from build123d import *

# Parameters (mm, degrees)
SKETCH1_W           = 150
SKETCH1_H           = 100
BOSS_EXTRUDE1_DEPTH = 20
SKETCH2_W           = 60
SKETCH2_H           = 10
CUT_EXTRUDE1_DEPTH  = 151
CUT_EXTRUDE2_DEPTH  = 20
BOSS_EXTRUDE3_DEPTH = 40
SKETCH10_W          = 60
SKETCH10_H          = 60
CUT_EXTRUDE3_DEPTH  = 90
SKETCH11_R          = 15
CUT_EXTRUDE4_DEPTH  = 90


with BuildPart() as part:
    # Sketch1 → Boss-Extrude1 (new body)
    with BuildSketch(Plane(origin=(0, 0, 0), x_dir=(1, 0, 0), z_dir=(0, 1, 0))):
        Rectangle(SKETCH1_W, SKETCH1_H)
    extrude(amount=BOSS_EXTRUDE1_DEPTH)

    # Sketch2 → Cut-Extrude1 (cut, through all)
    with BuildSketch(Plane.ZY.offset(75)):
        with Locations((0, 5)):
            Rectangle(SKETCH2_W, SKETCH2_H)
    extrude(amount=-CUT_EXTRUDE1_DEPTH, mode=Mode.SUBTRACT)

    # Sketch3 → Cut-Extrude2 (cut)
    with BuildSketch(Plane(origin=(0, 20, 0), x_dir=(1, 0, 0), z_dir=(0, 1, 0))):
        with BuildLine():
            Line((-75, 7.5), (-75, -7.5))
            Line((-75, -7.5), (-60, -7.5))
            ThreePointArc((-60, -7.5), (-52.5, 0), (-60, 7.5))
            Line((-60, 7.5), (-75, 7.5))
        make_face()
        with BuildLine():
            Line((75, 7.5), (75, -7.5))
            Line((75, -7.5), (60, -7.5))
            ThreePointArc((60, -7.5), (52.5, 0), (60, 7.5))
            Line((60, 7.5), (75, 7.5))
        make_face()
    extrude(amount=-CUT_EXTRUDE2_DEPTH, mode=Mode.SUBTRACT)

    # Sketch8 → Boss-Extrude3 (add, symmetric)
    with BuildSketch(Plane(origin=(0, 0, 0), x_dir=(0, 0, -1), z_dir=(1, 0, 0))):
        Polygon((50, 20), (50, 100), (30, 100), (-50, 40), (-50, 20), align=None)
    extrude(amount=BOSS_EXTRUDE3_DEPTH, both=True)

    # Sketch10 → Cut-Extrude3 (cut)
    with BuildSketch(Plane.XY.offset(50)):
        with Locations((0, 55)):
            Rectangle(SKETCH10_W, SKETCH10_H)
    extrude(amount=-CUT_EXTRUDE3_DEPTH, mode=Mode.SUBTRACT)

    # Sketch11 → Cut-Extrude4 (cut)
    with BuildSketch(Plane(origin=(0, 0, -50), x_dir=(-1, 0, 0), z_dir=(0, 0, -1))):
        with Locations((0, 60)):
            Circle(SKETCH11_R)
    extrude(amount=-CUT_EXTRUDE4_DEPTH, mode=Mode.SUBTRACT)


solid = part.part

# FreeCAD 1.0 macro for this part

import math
import FreeCAD as App
import Part
import Sketcher
Q = App.Units.Quantity


def add_polygon(sketch, points):
    """Adds a closed chain of lines whose ends are joined by coincident constraints."""
    first, n = sketch.GeometryCount, len(points)
    for a, b in zip(points, points[1:] + points[:1]):
        sketch.addGeometry(Part.LineSegment(App.Vector(*a, 0), App.Vector(*b, 0)), False)
    for i in range(n):
        sketch.addConstraint(Sketcher.Constraint("Coincident", first + i, 2, first + (i + 1) % n, 1))

doc = App.newDocument("Part")
body = doc.addObject("PartDesign::Body", "Body")

# Sketch on XZ plane
sketch1 = body.newObject("Sketcher::SketchObject", "Sketch")
sketch1.AttachmentSupport = (doc.getObject("XZ_Plane"), [""])
sketch1.MapMode = "FlatFace"
add_polygon(sketch1, [(-75, -50), (-75, 50), (75, 50), (75, -50)])  # lines 0-3
sketch1.addConstraint([
    Sketcher.Constraint("Vertical", 0),
    Sketcher.Constraint("Horizontal", 1),
    Sketcher.Constraint("Vertical", 2),
    Sketcher.Constraint("Horizontal", 3),
    Sketcher.Constraint("Symmetric", 0, 2, 2, 2, -1, 1),
    Sketcher.Constraint("DistanceX", 1, 1, 1, 2, Q("150 mm")),
    Sketcher.Constraint("DistanceY", 0, 1, 0, 2, Q("100 mm")),
])
pad1 = body.newObject("PartDesign::Pad", "Pad")
pad1.Profile = sketch1
pad1.Length = 20
pad1.Reversed = True

# Sketch on YZ plane
sketch2 = body.newObject("Sketcher::SketchObject", "Sketch001")
sketch2.AttachmentSupport = (doc.getObject("YZ_Plane"), [""])
sketch2.MapMode = "FlatFace"
sketch2.AttachmentOffset = App.Placement(App.Vector(0, 0, -75), App.Rotation())
add_polygon(sketch2, [(10, -30), (0, -30), (0, 30), (10, 30)])  # lines 0-3
sketch2.addConstraint([
    Sketcher.Constraint("Horizontal", 0),
    Sketcher.Constraint("Vertical", 1),
    Sketcher.Constraint("Horizontal", 2),
    Sketcher.Constraint("Vertical", 3),
    Sketcher.Constraint("Symmetric", 0, 2, 1, 2, -1, 1),
    Sketcher.Constraint("DistanceX", 0, 2, 0, 1, Q("10 mm")),
    Sketcher.Constraint("DistanceY", 1, 1, 1, 2, Q("60 mm")),
])
pocket1 = body.newObject("PartDesign::Pocket", "Pocket")
pocket1.Profile = sketch2
pocket1.Type = "ThroughAll"
pocket1.Reversed = True

# Sketch on XZ plane
sketch3 = body.newObject("Sketcher::SketchObject", "Sketch002")
sketch3.AttachmentSupport = (doc.getObject("XZ_Plane"), [""])
sketch3.MapMode = "FlatFace"
sketch3.AttachmentOffset = App.Placement(App.Vector(0, 0, -20), App.Rotation())
sketch3.addGeometry([
    Part.LineSegment(App.Vector(-75, -8, 0), App.Vector(-75, 8, 0)),  # 0
    Part.LineSegment(App.Vector(-75, 8, 0), App.Vector(-60, 8, 0)),  # 1
    Part.ArcOfCircle(Part.Circle(App.Vector(-60, 0, 0), App.Vector(0, 0, 1), 8), math.radians(-90), math.radians(90)),  # 2
    Part.LineSegment(App.Vector(-60, -8, 0), App.Vector(-75, -8, 0)),  # 3
    Part.LineSegment(App.Vector(75, 8, 0), App.Vector(75, -8, 0)),  # 4
    Part.LineSegment(App.Vector(75, -8, 0), App.Vector(60, -8, 0)),  # 5
    Part.ArcOfCircle(Part.Circle(App.Vector(60, 0, 0), App.Vector(0, 0, 1), 8), math.radians(90), math.radians(270)),  # 6
    Part.LineSegment(App.Vector(60, 8, 0), App.Vector(75, 8, 0)),  # 7
], False)
sketch3.addConstraint([
    Sketcher.Constraint("Coincident", 0, 2, 1, 1),
    Sketcher.Constraint("Tangent", 1, 2, 2, 2),
    Sketcher.Constraint("Tangent", 2, 1, 3, 1),
    Sketcher.Constraint("Coincident", 3, 2, 0, 1),
    Sketcher.Constraint("Coincident", 4, 2, 5, 1),
    Sketcher.Constraint("Tangent", 5, 2, 6, 2),
    Sketcher.Constraint("Tangent", 6, 1, 7, 1),
    Sketcher.Constraint("Coincident", 7, 2, 4, 1),
    Sketcher.Constraint("Vertical", 0),
    Sketcher.Constraint("Horizontal", 1),
    Sketcher.Constraint("Horizontal", 3),
    Sketcher.Constraint("Vertical", 4),
    Sketcher.Constraint("Horizontal", 5),
    Sketcher.Constraint("Horizontal", 7),
    Sketcher.Constraint("Equal", 2, 6),
    Sketcher.Constraint("Symmetric", 2, 3, 6, 3, -1, 1),
    Sketcher.Constraint("Symmetric", 3, 2, 4, 2, -2),
    Sketcher.Constraint("Equal", 7, 0),
    Sketcher.Constraint("Radius", 2, Q("7.5 mm")),
    Sketcher.Constraint("DistanceX", 2, 3, -1, 1, Q("60 mm")),
])
pocket2 = body.newObject("PartDesign::Pocket", "Pocket001")
pocket2.Profile = sketch3
pocket2.Length = 20
pocket2.Reversed = True

# Sketch on YZ plane
sketch4 = body.newObject("Sketcher::SketchObject", "Sketch003")
sketch4.AttachmentSupport = (doc.getObject("YZ_Plane"), [""])
sketch4.MapMode = "FlatFace"
add_polygon(sketch4, [(20, -50), (100, -50), (100, -30), (40, 50), (20, 50)])  # lines 0-4
sketch4.addConstraint([
    Sketcher.Constraint("Horizontal", 0),
    Sketcher.Constraint("Vertical", 1),
    Sketcher.Constraint("Horizontal", 3),
    Sketcher.Constraint("Vertical", 4),
    Sketcher.Constraint("Equal", 3, 1),
    Sketcher.Constraint("DistanceX", 0, 1, 0, 2, Q("80 mm")),
    Sketcher.Constraint("DistanceX", 3, 2, 3, 1, Q("20 mm")),
    Sketcher.Constraint("DistanceY", 4, 2, 4, 1, Q("100 mm")),
    Sketcher.Constraint("DistanceX", -1, 1, 0, 2, Q("100 mm")),
    Sketcher.Constraint("DistanceY", 0, 2, -1, 1, Q("50 mm")),
])
pad2 = body.newObject("PartDesign::Pad", "Pad001")
pad2.Profile = sketch4
pad2.Length = 80
pad2.Midplane = True

# Sketch on XY plane
sketch5 = body.newObject("Sketcher::SketchObject", "Sketch004")
sketch5.AttachmentSupport = (doc.getObject("XY_Plane"), [""])
sketch5.MapMode = "FlatFace"
sketch5.AttachmentOffset = App.Placement(App.Vector(0, 0, 50), App.Rotation())
add_polygon(sketch5, [(-30, 85), (-30, 25), (30, 25), (30, 85)])  # lines 0-3
sketch5.addConstraint([
    Sketcher.Constraint("Vertical", 0),
    Sketcher.Constraint("Horizontal", 1),
    Sketcher.Constraint("Vertical", 2),
    Sketcher.Constraint("Horizontal", 3),
    Sketcher.Constraint("Equal", 3, 0),
    Sketcher.Constraint("DistanceX", 1, 1, 1, 2, Q("60 mm")),
    Sketcher.Constraint("DistanceX", 0, 2, -1, 1, Q("30 mm")),
    Sketcher.Constraint("DistanceY", -1, 1, 0, 2, Q("25 mm")),
])
pocket3 = body.newObject("PartDesign::Pocket", "Pocket002")
pocket3.Profile = sketch5
pocket3.Length = 90

# Sketch on XY plane
sketch6 = body.newObject("Sketcher::SketchObject", "Sketch005")
sketch6.AttachmentSupport = (doc.getObject("XY_Plane"), [""])
sketch6.MapMode = "FlatFace"
sketch6.AttachmentOffset = App.Placement(App.Vector(0, 0, -50), App.Rotation())
sketch6.addGeometry(Part.Circle(App.Vector(0, 60, 0), App.Vector(0, 0, 1), 15), False)
sketch6.addConstraint([
    Sketcher.Constraint("PointOnObject", 0, 3, -2),
    Sketcher.Constraint("Diameter", 0, Q("30 mm")),
    Sketcher.Constraint("DistanceY", -1, 1, 0, 3, Q("60 mm")),
])
pocket4 = body.newObject("PartDesign::Pocket", "Pocket003")
pocket4.Profile = sketch6
pocket4.Length = 90
pocket4.Reversed = True

doc.recompute()
